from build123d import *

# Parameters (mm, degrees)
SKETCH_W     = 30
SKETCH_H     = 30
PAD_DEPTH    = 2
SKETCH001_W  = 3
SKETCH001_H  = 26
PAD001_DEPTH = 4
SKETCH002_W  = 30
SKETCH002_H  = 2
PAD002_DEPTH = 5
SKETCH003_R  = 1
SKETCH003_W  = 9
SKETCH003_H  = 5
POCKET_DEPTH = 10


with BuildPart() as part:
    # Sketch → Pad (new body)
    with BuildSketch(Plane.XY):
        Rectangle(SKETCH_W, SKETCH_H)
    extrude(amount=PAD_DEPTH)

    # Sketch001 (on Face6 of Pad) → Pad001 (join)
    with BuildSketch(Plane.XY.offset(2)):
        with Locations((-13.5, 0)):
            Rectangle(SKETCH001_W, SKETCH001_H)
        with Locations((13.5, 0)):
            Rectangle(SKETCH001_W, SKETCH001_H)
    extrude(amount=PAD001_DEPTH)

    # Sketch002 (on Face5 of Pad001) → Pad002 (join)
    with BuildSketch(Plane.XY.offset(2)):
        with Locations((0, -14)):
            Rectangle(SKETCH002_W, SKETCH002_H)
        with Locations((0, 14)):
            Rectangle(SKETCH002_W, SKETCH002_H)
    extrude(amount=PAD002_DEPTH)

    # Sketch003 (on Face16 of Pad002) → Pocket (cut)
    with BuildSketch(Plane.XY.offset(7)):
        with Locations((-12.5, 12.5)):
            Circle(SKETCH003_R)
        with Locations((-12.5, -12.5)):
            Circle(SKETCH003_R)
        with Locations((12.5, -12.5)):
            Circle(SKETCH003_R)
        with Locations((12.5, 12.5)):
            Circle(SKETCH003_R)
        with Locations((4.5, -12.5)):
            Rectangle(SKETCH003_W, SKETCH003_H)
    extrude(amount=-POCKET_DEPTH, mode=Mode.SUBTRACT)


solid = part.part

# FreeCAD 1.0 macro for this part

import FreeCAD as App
import Part
import Sketcher

V = App.Vector
Q = App.Units.Quantity

doc = App.newDocument("Part")
params = doc.addObject("Spreadsheet::Sheet", "Params")
for row, (alias, value) in enumerate([
    ("sketch1_width", "30 mm"),
    ("pad1_length", "2 mm"),
    ("sketch2_width", "3 mm"),
    ("sketch2_height", "26 mm"),
    ("pad2_length", "4 mm"),
    ("sketch3_width", "30 mm"),
    ("sketch3_height", "2 mm"),
    ("pad3_length", "5 mm"),
    ("sketch4_diameter", "2 mm"),
    ("sketch4_width", "9 mm"),
    ("sketch4_height", "5 mm"),
    ("pocket1_length", "10 mm"),
], start=1):
    params.set(f"A{row}", alias)
    params.set(f"B{row}", "=" + value)
    params.setAlias(f"B{row}", alias)

body = doc.addObject("PartDesign::Body", "Body")

sketch1 = body.newObject("Sketcher::SketchObject", "Sketch")
sketch1.AttachmentSupport = (doc.getObject("XY_Plane"), [""])
sketch1.MapMode = "FlatFace"
sketch1.addGeometry([
    Part.LineSegment(V(-15, 15, 0), V(-15, -15, 0)),
    Part.LineSegment(V(-15, -15, 0), V(15, -15, 0)),
    Part.LineSegment(V(15, -15, 0), V(15, 15, 0)),
    Part.LineSegment(V(15, 15, 0), V(-15, 15, 0)),
], False)
sketch1.addConstraint([
    Sketcher.Constraint("Coincident", 0, 2, 1, 1),
    Sketcher.Constraint("Coincident", 1, 2, 2, 1),
    Sketcher.Constraint("Coincident", 2, 2, 3, 1),
    Sketcher.Constraint("Coincident", 3, 2, 0, 1),
    Sketcher.Constraint("Vertical", 0),
    Sketcher.Constraint("Horizontal", 1),
    Sketcher.Constraint("Vertical", 2),
    Sketcher.Constraint("Horizontal", 3),
    Sketcher.Constraint("Symmetric", 0, 2, 2, 2, -1, 1),
    Sketcher.Constraint("Equal", 3, 0),
    Sketcher.Constraint("DistanceX", 1, 1, 1, 2, Q("30 mm")),
])
sketch1.setExpression("Constraints[10]", "Params.sketch1_width")
pad1 = body.newObject("PartDesign::Pad", "Pad")
pad1.Profile = sketch1
pad1.setExpression("Length", "Params.pad1_length")

sketch2 = body.newObject("Sketcher::SketchObject", "Sketch001")
sketch2.AttachmentSupport = (doc.getObject("XY_Plane"), [""])
sketch2.MapMode = "FlatFace"
sketch2.AttachmentOffset = App.Placement(V(0, 0, 2), App.Rotation())
sketch2.addGeometry([
    Part.LineSegment(V(-15, 13, 0), V(-15, -13, 0)),
    Part.LineSegment(V(-15, -13, 0), V(-12, -13, 0)),
    Part.LineSegment(V(-12, -13, 0), V(-12, 13, 0)),
    Part.LineSegment(V(-12, 13, 0), V(-15, 13, 0)),
    Part.LineSegment(V(12, 13, 0), V(12, -13, 0)),
    Part.LineSegment(V(12, -13, 0), V(15, -13, 0)),
    Part.LineSegment(V(15, -13, 0), V(15, 13, 0)),
    Part.LineSegment(V(15, 13, 0), V(12, 13, 0)),
], False)
sketch2.addConstraint([
    Sketcher.Constraint("Coincident", 0, 2, 1, 1),
    Sketcher.Constraint("Coincident", 1, 2, 2, 1),
    Sketcher.Constraint("Coincident", 2, 2, 3, 1),
    Sketcher.Constraint("Coincident", 3, 2, 0, 1),
    Sketcher.Constraint("Coincident", 4, 2, 5, 1),
    Sketcher.Constraint("Coincident", 5, 2, 6, 1),
    Sketcher.Constraint("Coincident", 6, 2, 7, 1),
    Sketcher.Constraint("Coincident", 7, 2, 4, 1),
    Sketcher.Constraint("Vertical", 0),
    Sketcher.Constraint("Horizontal", 1),
    Sketcher.Constraint("Vertical", 2),
    Sketcher.Constraint("Horizontal", 3),
    Sketcher.Constraint("Vertical", 4),
    Sketcher.Constraint("Horizontal", 5),
    Sketcher.Constraint("Vertical", 6),
    Sketcher.Constraint("Horizontal", 7),
    Sketcher.Constraint("Symmetric", 2, 2, 4, 2, -1, 1),
    Sketcher.Constraint("Symmetric", 0, 2, 6, 2, -1, 1),
    Sketcher.Constraint("Horizontal", 1, 2, 4, 2),
    Sketcher.Constraint("DistanceX", 1, 1, 1, 2, Q("3 mm")),
    Sketcher.Constraint("DistanceY", 0, 2, 0, 1, Q("26 mm")),
    Sketcher.Constraint("DistanceX", 0, 2, -1, 1, Q("15 mm")),
])
sketch2.setExpression("Constraints[19]", "Params.sketch2_width")
sketch2.setExpression("Constraints[20]", "Params.sketch2_height")
pad2 = body.newObject("PartDesign::Pad", "Pad001")
pad2.Profile = sketch2
pad2.setExpression("Length", "Params.pad2_length")

sketch3 = body.newObject("Sketcher::SketchObject", "Sketch002")
sketch3.AttachmentSupport = (doc.getObject("XY_Plane"), [""])
sketch3.MapMode = "FlatFace"
sketch3.AttachmentOffset = App.Placement(V(0, 0, 2), App.Rotation())
sketch3.addGeometry([
    Part.LineSegment(V(-15, -13, 0), V(-15, -15, 0)),
    Part.LineSegment(V(-15, -15, 0), V(15, -15, 0)),
    Part.LineSegment(V(15, -15, 0), V(15, -13, 0)),
    Part.LineSegment(V(15, -13, 0), V(-15, -13, 0)),
    Part.LineSegment(V(-15, 15, 0), V(-15, 13, 0)),
    Part.LineSegment(V(-15, 13, 0), V(15, 13, 0)),
    Part.LineSegment(V(15, 13, 0), V(15, 15, 0)),
    Part.LineSegment(V(15, 15, 0), V(-15, 15, 0)),
], False)
sketch3.addConstraint([
    Sketcher.Constraint("Coincident", 0, 2, 1, 1),
    Sketcher.Constraint("Coincident", 1, 2, 2, 1),
    Sketcher.Constraint("Coincident", 2, 2, 3, 1),
    Sketcher.Constraint("Coincident", 3, 2, 0, 1),
    Sketcher.Constraint("Coincident", 4, 2, 5, 1),
    Sketcher.Constraint("Coincident", 5, 2, 6, 1),
    Sketcher.Constraint("Coincident", 6, 2, 7, 1),
    Sketcher.Constraint("Coincident", 7, 2, 4, 1),
    Sketcher.Constraint("Vertical", 0),
    Sketcher.Constraint("Horizontal", 1),
    Sketcher.Constraint("Vertical", 2),
    Sketcher.Constraint("Horizontal", 3),
    Sketcher.Constraint("Vertical", 4),
    Sketcher.Constraint("Horizontal", 5),
    Sketcher.Constraint("Vertical", 6),
    Sketcher.Constraint("Horizontal", 7),
    Sketcher.Constraint("Symmetric", 2, 2, 4, 2, -1, 1),
    Sketcher.Constraint("Symmetric", 0, 2, 6, 2, -1, 1),
    Sketcher.Constraint("Vertical", 3, 2, 4, 2),
    Sketcher.Constraint("DistanceX", 1, 1, 1, 2, Q("30 mm")),
    Sketcher.Constraint("DistanceY", 0, 2, 0, 1, Q("2 mm")),
    Sketcher.Constraint("DistanceY", 0, 2, -1, 1, Q("15 mm")),
])
sketch3.setExpression("Constraints[19]", "Params.sketch3_width")
sketch3.setExpression("Constraints[20]", "Params.sketch3_height")
pad3 = body.newObject("PartDesign::Pad", "Pad002")
pad3.Profile = sketch3
pad3.setExpression("Length", "Params.pad3_length")

sketch4 = body.newObject("Sketcher::SketchObject", "Sketch003")
sketch4.AttachmentSupport = (doc.getObject("XY_Plane"), [""])
sketch4.MapMode = "FlatFace"
sketch4.AttachmentOffset = App.Placement(V(0, 0, 7), App.Rotation())
sketch4.addGeometry([
    Part.Circle(V(-12.5, 12.5, 0), V(0, 0, 1), 1),
    Part.Circle(V(-12.5, -12.5, 0), V(0, 0, 1), 1),
    Part.Circle(V(12.5, -12.5, 0), V(0, 0, 1), 1),
    Part.Circle(V(12.5, 12.5, 0), V(0, 0, 1), 1),
    Part.LineSegment(V(0, -10, 0), V(0, -15, 0)),
    Part.LineSegment(V(0, -15, 0), V(9, -15, 0)),
    Part.LineSegment(V(9, -15, 0), V(9, -10, 0)),
    Part.LineSegment(V(9, -10, 0), V(0, -10, 0)),
], False)
sketch4.addConstraint([
    Sketcher.Constraint("Coincident", 4, 2, 5, 1),
    Sketcher.Constraint("Coincident", 5, 2, 6, 1),
    Sketcher.Constraint("Coincident", 6, 2, 7, 1),
    Sketcher.Constraint("Coincident", 7, 2, 4, 1),
    Sketcher.Constraint("Vertical", 4),
    Sketcher.Constraint("Horizontal", 5),
    Sketcher.Constraint("Vertical", 6),
    Sketcher.Constraint("Horizontal", 7),
    Sketcher.Constraint("Equal", 0, 1),
    Sketcher.Constraint("Equal", 1, 2),
    Sketcher.Constraint("Equal", 2, 3),
    Sketcher.Constraint("Symmetric", 0, 3, 2, 3, -1, 1),
    Sketcher.Constraint("Symmetric", 1, 3, 3, 3, -1, 1),
    Sketcher.Constraint("Symmetric", 1, 3, 2, 3, -2),
    Sketcher.Constraint("PointOnObject", 4, 2, -2),
    Sketcher.Constraint("Diameter", 0, Q("2 mm")),
    Sketcher.Constraint("DistanceX", 5, 1, 5, 2, Q("9 mm")),
    Sketcher.Constraint("DistanceY", 4, 2, 4, 1, Q("5 mm")),
    Sketcher.Constraint("DistanceY", 4, 2, -1, 1, Q("15 mm")),
    Sketcher.Constraint("DistanceY", 1, 3, 0, 3, Q("25 mm")),
    Sketcher.Constraint("DistanceX", 1, 3, 2, 3, Q("25 mm")),
])
sketch4.setExpression("Constraints[15]", "Params.sketch4_diameter")
sketch4.setExpression("Constraints[16]", "Params.sketch4_width")
sketch4.setExpression("Constraints[17]", "Params.sketch4_height")
pocket1 = body.newObject("PartDesign::Pocket", "Pocket")
pocket1.Profile = sketch4
pocket1.setExpression("Length", "Params.pocket1_length")

doc.recompute()
